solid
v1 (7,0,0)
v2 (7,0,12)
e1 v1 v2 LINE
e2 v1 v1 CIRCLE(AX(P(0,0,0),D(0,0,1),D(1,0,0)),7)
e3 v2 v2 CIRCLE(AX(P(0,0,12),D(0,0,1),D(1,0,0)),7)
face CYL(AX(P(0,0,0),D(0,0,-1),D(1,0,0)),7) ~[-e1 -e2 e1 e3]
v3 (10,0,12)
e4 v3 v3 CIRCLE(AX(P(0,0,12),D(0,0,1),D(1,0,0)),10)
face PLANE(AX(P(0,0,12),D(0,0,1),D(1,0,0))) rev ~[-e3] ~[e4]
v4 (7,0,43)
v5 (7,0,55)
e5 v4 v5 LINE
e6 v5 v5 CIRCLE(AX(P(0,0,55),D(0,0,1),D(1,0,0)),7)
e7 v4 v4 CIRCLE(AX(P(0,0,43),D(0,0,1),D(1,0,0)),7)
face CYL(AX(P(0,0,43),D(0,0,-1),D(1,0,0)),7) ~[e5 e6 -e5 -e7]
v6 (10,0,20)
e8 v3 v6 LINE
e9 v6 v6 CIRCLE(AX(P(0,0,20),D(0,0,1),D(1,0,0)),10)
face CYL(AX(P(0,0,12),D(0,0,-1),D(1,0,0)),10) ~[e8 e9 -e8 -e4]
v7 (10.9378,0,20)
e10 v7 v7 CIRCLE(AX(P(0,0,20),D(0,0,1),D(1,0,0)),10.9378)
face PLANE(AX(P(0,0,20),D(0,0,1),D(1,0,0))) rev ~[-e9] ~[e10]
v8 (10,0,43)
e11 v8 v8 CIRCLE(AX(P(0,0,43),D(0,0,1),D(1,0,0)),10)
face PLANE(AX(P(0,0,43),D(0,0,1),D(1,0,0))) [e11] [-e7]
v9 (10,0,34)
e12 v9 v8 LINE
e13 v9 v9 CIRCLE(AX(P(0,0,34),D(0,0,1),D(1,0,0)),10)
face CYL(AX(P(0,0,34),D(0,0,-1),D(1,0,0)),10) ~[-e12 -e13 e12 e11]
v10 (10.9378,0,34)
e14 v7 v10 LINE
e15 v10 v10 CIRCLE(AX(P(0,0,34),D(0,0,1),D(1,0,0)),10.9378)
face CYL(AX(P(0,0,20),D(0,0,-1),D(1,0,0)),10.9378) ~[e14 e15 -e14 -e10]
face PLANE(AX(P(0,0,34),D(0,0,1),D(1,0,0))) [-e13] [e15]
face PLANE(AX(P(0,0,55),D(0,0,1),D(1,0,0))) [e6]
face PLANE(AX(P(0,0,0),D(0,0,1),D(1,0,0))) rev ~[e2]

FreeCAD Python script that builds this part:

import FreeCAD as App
import Part
import Sketcher
Q = App.Units.Quantity

doc = App.newDocument("Part")
params = doc.addObject("Spreadsheet::Sheet", "Params")
for row, (alias, value) in enumerate([
    ("sketch1_diameter", "14 mm"),
    ("pad1_length", "12 mm"),
    ("sketch2_diameter", "20 mm"),
    ("pad2_length", "8 mm"),
    ("pad3_length", "14 mm"),
    ("sketch4_diameter", "20 mm"),
    ("pad4_length", "9 mm"),
    ("sketch5_diameter", "14 mm"),
    ("pad5_length", "12 mm"),
], start=1):
    params.set(f"A{row}", alias)
    params.set(f"B{row}", "=" + value)
    params.setAlias(f"B{row}", alias)

body = doc.addObject("PartDesign::Body", "Body")

# Sketch on XY plane
sketch1 = doc.addObject("Sketcher::SketchObject", "Sketch")
body.addObject(sketch1)
sketch1.AttachmentSupport = (doc.XY_Plane, [""])
sketch1.MapMode = "FlatFace"
sketch1.addGeometry(Part.Circle(App.Vector(0, 0, 0), App.Vector(0, 0, 1), 7), False)
sketch1.addConstraint([
    Sketcher.Constraint("Coincident", 0, 3, -1, 1),
    Sketcher.Constraint("Diameter", 0, Q("14 mm")),
])
sketch1.setExpression("Constraints[1]", "Params.sketch1_diameter")
pad1 = doc.addObject("PartDesign::Pad", "Pad")
body.addObject(pad1)
pad1.Profile = sketch1
pad1.setExpression("Length", "Params.pad1_length")

# Sketch on XY plane
sketch2 = doc.addObject("Sketcher::SketchObject", "Sketch001")
body.addObject(sketch2)
sketch2.AttachmentSupport = (doc.XY_Plane, [""])
sketch2.MapMode = "FlatFace"
sketch2.AttachmentOffset = App.Placement(App.Vector(0, 0, 12), App.Rotation())
sketch2.addGeometry(Part.Circle(App.Vector(0, 0, 0), App.Vector(0, 0, 1), 10), False)
sketch2.addConstraint([
    Sketcher.Constraint("Coincident", 0, 3, -1, 1),
    Sketcher.Constraint("Diameter", 0, Q("20 mm")),
])
sketch2.setExpression("Constraints[1]", "Params.sketch2_diameter")
pad2 = doc.addObject("PartDesign::Pad", "Pad001")
body.addObject(pad2)
pad2.Profile = sketch2
pad2.setExpression("Length", "Params.pad2_length")

# Sketch on XY plane
sketch3 = doc.addObject("Sketcher::SketchObject", "Sketch002")
body.addObject(sketch3)
sketch3.AttachmentSupport = (doc.XY_Plane, [""])
sketch3.MapMode = "FlatFace"
sketch3.AttachmentOffset = App.Placement(App.Vector(0, 0, 20), App.Rotation())
sketch3.addGeometry(Part.Circle(App.Vector(0, 0, 0), App.Vector(0, 0, 1), 11), False)
sketch3.addConstraint([
    Sketcher.Constraint("Coincident", 0, 3, -1, 1),
    Sketcher.Constraint("Diameter", 0, Q("21.8756 mm")),
])
pad3 = doc.addObject("PartDesign::Pad", "Pad002")
body.addObject(pad3)
pad3.Profile = sketch3
pad3.setExpression("Length", "Params.pad3_length")

# Sketch on XY plane
sketch4 = doc.addObject("Sketcher::SketchObject", "Sketch003")
body.addObject(sketch4)
sketch4.AttachmentSupport = (doc.XY_Plane, [""])
sketch4.MapMode = "FlatFace"
sketch4.AttachmentOffset = App.Placement(App.Vector(0, 0, 34), App.Rotation())
sketch4.addGeometry(Part.Circle(App.Vector(0, 0, 0), App.Vector(0, 0, 1), 10), False)
sketch4.addConstraint([
    Sketcher.Constraint("Coincident", 0, 3, -1, 1),
    Sketcher.Constraint("Diameter", 0, Q("20 mm")),
])
sketch4.setExpression("Constraints[1]", "Params.sketch4_diameter")
pad4 = doc.addObject("PartDesign::Pad", "Pad003")
body.addObject(pad4)
pad4.Profile = sketch4
pad4.setExpression("Length", "Params.pad4_length")

# Sketch on XY plane
sketch5 = doc.addObject("Sketcher::SketchObject", "Sketch004")
body.addObject(sketch5)
sketch5.AttachmentSupport = (doc.XY_Plane, [""])
sketch5.MapMode = "FlatFace"
sketch5.AttachmentOffset = App.Placement(App.Vector(0, 0, 43), App.Rotation())
sketch5.addGeometry(Part.Circle(App.Vector(0, 0, 0), App.Vector(0, 0, 1), 7), False)
sketch5.addConstraint([
    Sketcher.Constraint("Coincident", 0, 3, -1, 1),
    Sketcher.Constraint("Diameter", 0, Q("14 mm")),
])
sketch5.setExpression("Constraints[1]", "Params.sketch5_diameter")
pad5 = doc.addObject("PartDesign::Pad", "Pad004")
body.addObject(pad5)
pad5.Profile = sketch5
pad5.setExpression("Length", "Params.pad5_length")

doc.recompute()
